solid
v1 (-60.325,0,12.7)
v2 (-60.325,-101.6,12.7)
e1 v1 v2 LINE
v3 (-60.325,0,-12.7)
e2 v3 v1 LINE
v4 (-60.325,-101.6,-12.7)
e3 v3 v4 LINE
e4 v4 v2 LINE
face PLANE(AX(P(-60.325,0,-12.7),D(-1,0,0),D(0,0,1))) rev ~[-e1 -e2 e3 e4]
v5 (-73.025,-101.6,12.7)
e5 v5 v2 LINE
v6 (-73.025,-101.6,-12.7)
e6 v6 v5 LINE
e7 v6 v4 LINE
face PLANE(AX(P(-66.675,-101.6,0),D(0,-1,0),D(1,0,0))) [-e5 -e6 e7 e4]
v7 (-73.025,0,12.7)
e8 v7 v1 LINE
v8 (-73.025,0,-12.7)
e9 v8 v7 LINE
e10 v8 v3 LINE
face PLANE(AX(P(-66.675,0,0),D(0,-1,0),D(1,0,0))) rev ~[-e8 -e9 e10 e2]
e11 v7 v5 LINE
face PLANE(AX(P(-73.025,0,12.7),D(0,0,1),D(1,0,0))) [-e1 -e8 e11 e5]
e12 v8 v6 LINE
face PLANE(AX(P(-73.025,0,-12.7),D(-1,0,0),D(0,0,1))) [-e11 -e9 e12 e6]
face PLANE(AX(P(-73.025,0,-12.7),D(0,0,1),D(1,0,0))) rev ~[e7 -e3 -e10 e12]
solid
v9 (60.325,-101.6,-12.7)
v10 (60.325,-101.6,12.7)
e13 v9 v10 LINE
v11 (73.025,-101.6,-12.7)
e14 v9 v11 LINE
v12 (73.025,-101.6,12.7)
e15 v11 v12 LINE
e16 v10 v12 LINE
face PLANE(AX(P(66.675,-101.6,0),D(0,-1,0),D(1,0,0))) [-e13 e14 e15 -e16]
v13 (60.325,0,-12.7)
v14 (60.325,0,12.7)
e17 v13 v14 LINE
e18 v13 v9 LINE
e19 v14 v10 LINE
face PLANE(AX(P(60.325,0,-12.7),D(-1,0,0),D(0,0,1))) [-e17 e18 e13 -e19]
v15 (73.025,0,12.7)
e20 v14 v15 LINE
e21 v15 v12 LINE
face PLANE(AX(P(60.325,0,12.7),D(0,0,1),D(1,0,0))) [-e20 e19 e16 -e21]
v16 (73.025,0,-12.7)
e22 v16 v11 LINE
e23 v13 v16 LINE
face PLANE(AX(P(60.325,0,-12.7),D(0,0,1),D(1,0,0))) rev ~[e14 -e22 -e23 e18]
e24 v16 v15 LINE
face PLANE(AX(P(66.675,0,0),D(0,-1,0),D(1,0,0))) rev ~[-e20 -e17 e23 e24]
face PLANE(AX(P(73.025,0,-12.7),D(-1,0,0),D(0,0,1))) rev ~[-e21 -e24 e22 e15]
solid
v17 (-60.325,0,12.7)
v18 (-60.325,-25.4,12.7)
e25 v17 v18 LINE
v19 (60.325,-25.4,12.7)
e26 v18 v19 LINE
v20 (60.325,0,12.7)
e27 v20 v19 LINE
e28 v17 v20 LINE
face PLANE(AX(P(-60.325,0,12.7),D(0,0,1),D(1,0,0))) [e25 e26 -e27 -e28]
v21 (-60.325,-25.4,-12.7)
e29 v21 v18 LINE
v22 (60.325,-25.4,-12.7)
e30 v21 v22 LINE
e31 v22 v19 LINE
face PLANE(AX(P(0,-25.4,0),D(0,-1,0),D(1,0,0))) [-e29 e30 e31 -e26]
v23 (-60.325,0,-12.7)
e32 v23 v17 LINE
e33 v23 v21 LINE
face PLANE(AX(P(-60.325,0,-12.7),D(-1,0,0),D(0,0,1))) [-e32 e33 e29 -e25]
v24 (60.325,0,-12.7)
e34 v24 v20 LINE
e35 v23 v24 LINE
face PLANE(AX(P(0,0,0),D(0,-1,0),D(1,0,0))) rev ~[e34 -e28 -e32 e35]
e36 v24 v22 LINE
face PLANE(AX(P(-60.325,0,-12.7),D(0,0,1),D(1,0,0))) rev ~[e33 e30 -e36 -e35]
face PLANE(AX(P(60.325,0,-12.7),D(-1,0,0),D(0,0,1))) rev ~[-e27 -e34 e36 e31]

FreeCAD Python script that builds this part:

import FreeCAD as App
import Part
import Sketcher

V = App.Vector
Q = App.Units.Quantity

doc = App.newDocument("Part")
params = doc.addObject("Spreadsheet::Sheet", "Params")
for row, (alias, value) in enumerate([
    ("sketch1_height", "1 in"),
    ("sketch1_width", "4.75 in"),
    ("pad1_length", "1 in"),
    ("sketch2_height", "1 in"),
    ("sketch2_width", "0.5 in"),
    ("pad2_length", "4 in"),
], start=1):
    params.set(f"A{row}", alias)
    params.set(f"B{row}", "=" + value)
    params.setAlias(f"B{row}", alias)

body = doc.addObject("PartDesign::Body", "Body")

# Sketch on XZ plane
sketch1 = doc.addObject("Sketcher::SketchObject", "Sketch")
body.addObject(sketch1)
sketch1.AttachmentSupport = (doc.XZ_Plane, [""])
sketch1.MapMode = "FlatFace"
sketch1.addGeometry([
    Part.LineSegment(V(-60, 13, 0), V(-60, -13, 0)),
    Part.LineSegment(V(-60, -13, 0), V(60, -13, 0)),
    Part.LineSegment(V(60, -13, 0), V(60, 13, 0)),
    Part.LineSegment(V(60, 13, 0), V(-60, 13, 0)),
], False)
sketch1.addConstraint([
    Sketcher.Constraint("Coincident", 0, 2, 1, 1),
    Sketcher.Constraint("Coincident", 1, 2, 2, 1),
    Sketcher.Constraint("Coincident", 2, 2, 3, 1),
    Sketcher.Constraint("Coincident", 3, 2, 0, 1),
    Sketcher.Constraint("Vertical", 0),
    Sketcher.Constraint("Horizontal", 1),
    Sketcher.Constraint("Vertical", 2),
    Sketcher.Constraint("Horizontal", 3),
    Sketcher.Constraint("Symmetric", 0, 2, 2, 2, -1, 1),
    Sketcher.Constraint("DistanceY", 0, 2, 0, 1, Q("1 in")),
    Sketcher.Constraint("DistanceX", 1, 1, 1, 2, Q("4.75 in")),
])
sketch1.setExpression("Constraints[9]", "Params.sketch1_height")
sketch1.setExpression("Constraints[10]", "Params.sketch1_width")
pad1 = doc.addObject("PartDesign::Pad", "Pad")
body.addObject(pad1)
pad1.Profile = sketch1
pad1.setExpression("Length", "Params.pad1_length")
body2 = doc.addObject("PartDesign::Body", "Body001")
body2.AllowCompound = True

# Sketch on XZ plane
sketch2 = doc.addObject("Sketcher::SketchObject", "Sketch001")
body2.addObject(sketch2)
sketch2.AttachmentSupport = (doc.getObject("XZ_Plane001"), [""])
sketch2.MapMode = "FlatFace"
sketch2.addGeometry([
    Part.LineSegment(V(-73, 13, 0), V(-73, -13, 0)),  # 0
    Part.LineSegment(V(-73, -13, 0), V(-60, -13, 0)),  # 1
    Part.LineSegment(V(-60, -13, 0), V(-60, 13, 0)),  # 2
    Part.LineSegment(V(-60, 13, 0), V(-73, 13, 0)),  # 3
    Part.LineSegment(V(60, 13, 0), V(60, -13, 0)),  # 4
    Part.LineSegment(V(60, -13, 0), V(73, -13, 0)),  # 5
    Part.LineSegment(V(73, -13, 0), V(73, 13, 0)),  # 6
    Part.LineSegment(V(73, 13, 0), V(60, 13, 0)),  # 7
], False)
sketch2.addConstraint([
    Sketcher.Constraint("Coincident", 0, 2, 1, 1),
    Sketcher.Constraint("Coincident", 1, 2, 2, 1),
    Sketcher.Constraint("Coincident", 2, 2, 3, 1),
    Sketcher.Constraint("Coincident", 3, 2, 0, 1),
    Sketcher.Constraint("Coincident", 4, 2, 5, 1),
    Sketcher.Constraint("Coincident", 5, 2, 6, 1),
    Sketcher.Constraint("Coincident", 6, 2, 7, 1),
    Sketcher.Constraint("Coincident", 7, 2, 4, 1),
    Sketcher.Constraint("Vertical", 0),
    Sketcher.Constraint("Horizontal", 1),
    Sketcher.Constraint("Vertical", 2),
    Sketcher.Constraint("Horizontal", 3),
    Sketcher.Constraint("Vertical", 4),
    Sketcher.Constraint("Horizontal", 5),
    Sketcher.Constraint("Vertical", 6),
    Sketcher.Constraint("Horizontal", 7),
    Sketcher.Constraint("Symmetric", 2, 2, 4, 2, -1, 1),
    Sketcher.Constraint("Symmetric", 0, 2, 6, 2, -1, 1),
    Sketcher.Constraint("Horizontal", 1, 2, 4, 2),
    Sketcher.Constraint("DistanceY", 0, 2, 0, 1, Q("1 in")),
    Sketcher.Constraint("DistanceX", 1, 1, 1, 2, Q("0.5 in")),
    Sketcher.Constraint("DistanceX", 1, 2, 4, 2, Q("4.75 in")),
])
sketch2.setExpression("Constraints[19]", "Params.sketch2_height")
sketch2.setExpression("Constraints[20]", "Params.sketch2_width")
pad2 = doc.addObject("PartDesign::Pad", "Pad001")
body2.addObject(pad2)
pad2.Profile = sketch2
pad2.setExpression("Length", "Params.pad2_length")

doc.recompute()
